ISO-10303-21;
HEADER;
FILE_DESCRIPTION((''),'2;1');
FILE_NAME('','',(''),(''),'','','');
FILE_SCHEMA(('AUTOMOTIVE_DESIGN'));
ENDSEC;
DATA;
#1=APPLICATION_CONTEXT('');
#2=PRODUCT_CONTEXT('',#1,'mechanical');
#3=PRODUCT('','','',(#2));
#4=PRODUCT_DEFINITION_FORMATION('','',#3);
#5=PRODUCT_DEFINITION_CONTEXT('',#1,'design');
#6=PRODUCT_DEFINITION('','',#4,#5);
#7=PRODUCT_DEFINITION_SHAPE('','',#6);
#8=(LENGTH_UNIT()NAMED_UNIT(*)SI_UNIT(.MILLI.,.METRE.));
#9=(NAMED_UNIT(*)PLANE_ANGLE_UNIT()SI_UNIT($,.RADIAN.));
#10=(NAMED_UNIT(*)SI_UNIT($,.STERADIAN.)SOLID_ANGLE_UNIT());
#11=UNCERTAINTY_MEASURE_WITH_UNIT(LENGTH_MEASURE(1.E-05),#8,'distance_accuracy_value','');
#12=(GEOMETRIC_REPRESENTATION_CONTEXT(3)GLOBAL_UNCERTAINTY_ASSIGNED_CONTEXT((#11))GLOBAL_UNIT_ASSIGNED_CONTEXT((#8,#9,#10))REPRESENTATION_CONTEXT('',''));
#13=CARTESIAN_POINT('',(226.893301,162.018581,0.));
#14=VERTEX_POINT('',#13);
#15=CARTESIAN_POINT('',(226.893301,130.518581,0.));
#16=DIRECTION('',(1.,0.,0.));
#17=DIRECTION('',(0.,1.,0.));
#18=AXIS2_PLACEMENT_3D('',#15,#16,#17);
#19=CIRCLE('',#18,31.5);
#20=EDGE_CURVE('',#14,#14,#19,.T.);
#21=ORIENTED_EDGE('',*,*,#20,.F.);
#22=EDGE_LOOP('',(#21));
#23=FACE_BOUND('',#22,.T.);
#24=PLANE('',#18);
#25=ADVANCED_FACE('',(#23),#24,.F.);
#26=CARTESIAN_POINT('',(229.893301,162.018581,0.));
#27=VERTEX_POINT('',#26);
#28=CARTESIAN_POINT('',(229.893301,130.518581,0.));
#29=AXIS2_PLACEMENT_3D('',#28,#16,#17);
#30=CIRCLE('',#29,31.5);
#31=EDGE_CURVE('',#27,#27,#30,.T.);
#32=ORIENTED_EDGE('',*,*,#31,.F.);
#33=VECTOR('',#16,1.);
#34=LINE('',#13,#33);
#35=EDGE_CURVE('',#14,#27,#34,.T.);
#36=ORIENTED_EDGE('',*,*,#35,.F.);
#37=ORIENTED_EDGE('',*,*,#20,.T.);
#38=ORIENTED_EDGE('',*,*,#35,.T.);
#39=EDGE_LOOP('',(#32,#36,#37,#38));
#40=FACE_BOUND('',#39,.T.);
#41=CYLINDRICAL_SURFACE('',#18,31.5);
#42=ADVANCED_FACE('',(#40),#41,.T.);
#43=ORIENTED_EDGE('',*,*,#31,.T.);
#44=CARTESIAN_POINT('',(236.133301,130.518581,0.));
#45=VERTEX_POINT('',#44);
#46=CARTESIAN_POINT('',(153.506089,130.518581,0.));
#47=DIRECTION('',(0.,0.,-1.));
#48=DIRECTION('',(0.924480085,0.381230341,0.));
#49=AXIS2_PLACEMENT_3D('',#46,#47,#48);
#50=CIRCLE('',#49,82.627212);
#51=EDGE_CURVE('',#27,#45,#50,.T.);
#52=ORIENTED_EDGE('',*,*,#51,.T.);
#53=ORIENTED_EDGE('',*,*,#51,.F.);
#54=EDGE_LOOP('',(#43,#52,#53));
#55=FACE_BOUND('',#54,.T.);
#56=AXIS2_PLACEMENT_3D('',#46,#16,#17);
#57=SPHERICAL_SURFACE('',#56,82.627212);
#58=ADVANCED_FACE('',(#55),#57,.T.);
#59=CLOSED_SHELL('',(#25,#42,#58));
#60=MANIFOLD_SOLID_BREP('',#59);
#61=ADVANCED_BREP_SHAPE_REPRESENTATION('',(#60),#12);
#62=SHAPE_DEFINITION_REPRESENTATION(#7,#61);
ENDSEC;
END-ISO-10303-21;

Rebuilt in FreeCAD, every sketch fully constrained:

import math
import FreeCAD as App
import Part
import Sketcher

V = App.Vector
Q = App.Units.Quantity

doc = App.newDocument("Part")
body = doc.addObject("PartDesign::Body", "Body")

# Sketch on XY plane
sketch1 = body.newObject("Sketcher::SketchObject", "Sketch")
sketch1.AttachmentSupport = (doc.getObject("XY_Plane"), [""])
sketch1.MapMode = "FlatFace"
sketch1.addGeometry([
    Part.LineSegment(V(226.9, 162, 0), V(226.9, 130.5, 0)),
    Part.LineSegment(V(226.9, 130.5, 0), V(236.1, 130.5, 0)),
    Part.ArcOfCircle(Part.Circle(V(153.5, 130.5, 0), V(0, 0, 1), 82.6), math.radians(0), math.radians(22)),
    Part.LineSegment(V(229.9, 162, 0), V(226.9, 162, 0)),
], False)
sketch1.addGeometry(Part.LineSegment(V(153.5, 130.5, 0), V(236.1, 130.5, 0)), True)  # axis
sketch1.addConstraint([
    Sketcher.Constraint("Coincident", 0, 2, 1, 1),
    Sketcher.Constraint("Coincident", 1, 2, 2, 1),
    Sketcher.Constraint("Coincident", 2, 2, 3, 1),
    Sketcher.Constraint("Coincident", 3, 2, 0, 1),
    Sketcher.Constraint("Vertical", 0),
    Sketcher.Constraint("Horizontal", 1),
    Sketcher.Constraint("Horizontal", 3),
    Sketcher.Constraint("Horizontal", 4),
    Sketcher.Constraint("Coincident", 4, 1, 2, 3),
    Sketcher.Constraint("Coincident", 4, 2, 1, 2),
    Sketcher.Constraint("DistanceX", 3, 2, 3, 1, Q("3 mm")),
    Sketcher.Constraint("DistanceY", 0, 2, 0, 1, Q("31.5 mm")),
    Sketcher.Constraint("DistanceX", 1, 1, 1, 2, Q("9.24 mm")),
    Sketcher.Constraint("DistanceX", -1, 1, 0, 2, Q("226.893301 mm")),
    Sketcher.Constraint("DistanceY", -1, 1, 2, 3, Q("130.518581 mm")),
])
revolution = body.newObject("PartDesign::Revolution", "Revolution")
revolution.Profile = sketch1
revolution.ReferenceAxis = (sketch1, ["Axis0"])
revolution.Angle = 360

doc.recompute()
